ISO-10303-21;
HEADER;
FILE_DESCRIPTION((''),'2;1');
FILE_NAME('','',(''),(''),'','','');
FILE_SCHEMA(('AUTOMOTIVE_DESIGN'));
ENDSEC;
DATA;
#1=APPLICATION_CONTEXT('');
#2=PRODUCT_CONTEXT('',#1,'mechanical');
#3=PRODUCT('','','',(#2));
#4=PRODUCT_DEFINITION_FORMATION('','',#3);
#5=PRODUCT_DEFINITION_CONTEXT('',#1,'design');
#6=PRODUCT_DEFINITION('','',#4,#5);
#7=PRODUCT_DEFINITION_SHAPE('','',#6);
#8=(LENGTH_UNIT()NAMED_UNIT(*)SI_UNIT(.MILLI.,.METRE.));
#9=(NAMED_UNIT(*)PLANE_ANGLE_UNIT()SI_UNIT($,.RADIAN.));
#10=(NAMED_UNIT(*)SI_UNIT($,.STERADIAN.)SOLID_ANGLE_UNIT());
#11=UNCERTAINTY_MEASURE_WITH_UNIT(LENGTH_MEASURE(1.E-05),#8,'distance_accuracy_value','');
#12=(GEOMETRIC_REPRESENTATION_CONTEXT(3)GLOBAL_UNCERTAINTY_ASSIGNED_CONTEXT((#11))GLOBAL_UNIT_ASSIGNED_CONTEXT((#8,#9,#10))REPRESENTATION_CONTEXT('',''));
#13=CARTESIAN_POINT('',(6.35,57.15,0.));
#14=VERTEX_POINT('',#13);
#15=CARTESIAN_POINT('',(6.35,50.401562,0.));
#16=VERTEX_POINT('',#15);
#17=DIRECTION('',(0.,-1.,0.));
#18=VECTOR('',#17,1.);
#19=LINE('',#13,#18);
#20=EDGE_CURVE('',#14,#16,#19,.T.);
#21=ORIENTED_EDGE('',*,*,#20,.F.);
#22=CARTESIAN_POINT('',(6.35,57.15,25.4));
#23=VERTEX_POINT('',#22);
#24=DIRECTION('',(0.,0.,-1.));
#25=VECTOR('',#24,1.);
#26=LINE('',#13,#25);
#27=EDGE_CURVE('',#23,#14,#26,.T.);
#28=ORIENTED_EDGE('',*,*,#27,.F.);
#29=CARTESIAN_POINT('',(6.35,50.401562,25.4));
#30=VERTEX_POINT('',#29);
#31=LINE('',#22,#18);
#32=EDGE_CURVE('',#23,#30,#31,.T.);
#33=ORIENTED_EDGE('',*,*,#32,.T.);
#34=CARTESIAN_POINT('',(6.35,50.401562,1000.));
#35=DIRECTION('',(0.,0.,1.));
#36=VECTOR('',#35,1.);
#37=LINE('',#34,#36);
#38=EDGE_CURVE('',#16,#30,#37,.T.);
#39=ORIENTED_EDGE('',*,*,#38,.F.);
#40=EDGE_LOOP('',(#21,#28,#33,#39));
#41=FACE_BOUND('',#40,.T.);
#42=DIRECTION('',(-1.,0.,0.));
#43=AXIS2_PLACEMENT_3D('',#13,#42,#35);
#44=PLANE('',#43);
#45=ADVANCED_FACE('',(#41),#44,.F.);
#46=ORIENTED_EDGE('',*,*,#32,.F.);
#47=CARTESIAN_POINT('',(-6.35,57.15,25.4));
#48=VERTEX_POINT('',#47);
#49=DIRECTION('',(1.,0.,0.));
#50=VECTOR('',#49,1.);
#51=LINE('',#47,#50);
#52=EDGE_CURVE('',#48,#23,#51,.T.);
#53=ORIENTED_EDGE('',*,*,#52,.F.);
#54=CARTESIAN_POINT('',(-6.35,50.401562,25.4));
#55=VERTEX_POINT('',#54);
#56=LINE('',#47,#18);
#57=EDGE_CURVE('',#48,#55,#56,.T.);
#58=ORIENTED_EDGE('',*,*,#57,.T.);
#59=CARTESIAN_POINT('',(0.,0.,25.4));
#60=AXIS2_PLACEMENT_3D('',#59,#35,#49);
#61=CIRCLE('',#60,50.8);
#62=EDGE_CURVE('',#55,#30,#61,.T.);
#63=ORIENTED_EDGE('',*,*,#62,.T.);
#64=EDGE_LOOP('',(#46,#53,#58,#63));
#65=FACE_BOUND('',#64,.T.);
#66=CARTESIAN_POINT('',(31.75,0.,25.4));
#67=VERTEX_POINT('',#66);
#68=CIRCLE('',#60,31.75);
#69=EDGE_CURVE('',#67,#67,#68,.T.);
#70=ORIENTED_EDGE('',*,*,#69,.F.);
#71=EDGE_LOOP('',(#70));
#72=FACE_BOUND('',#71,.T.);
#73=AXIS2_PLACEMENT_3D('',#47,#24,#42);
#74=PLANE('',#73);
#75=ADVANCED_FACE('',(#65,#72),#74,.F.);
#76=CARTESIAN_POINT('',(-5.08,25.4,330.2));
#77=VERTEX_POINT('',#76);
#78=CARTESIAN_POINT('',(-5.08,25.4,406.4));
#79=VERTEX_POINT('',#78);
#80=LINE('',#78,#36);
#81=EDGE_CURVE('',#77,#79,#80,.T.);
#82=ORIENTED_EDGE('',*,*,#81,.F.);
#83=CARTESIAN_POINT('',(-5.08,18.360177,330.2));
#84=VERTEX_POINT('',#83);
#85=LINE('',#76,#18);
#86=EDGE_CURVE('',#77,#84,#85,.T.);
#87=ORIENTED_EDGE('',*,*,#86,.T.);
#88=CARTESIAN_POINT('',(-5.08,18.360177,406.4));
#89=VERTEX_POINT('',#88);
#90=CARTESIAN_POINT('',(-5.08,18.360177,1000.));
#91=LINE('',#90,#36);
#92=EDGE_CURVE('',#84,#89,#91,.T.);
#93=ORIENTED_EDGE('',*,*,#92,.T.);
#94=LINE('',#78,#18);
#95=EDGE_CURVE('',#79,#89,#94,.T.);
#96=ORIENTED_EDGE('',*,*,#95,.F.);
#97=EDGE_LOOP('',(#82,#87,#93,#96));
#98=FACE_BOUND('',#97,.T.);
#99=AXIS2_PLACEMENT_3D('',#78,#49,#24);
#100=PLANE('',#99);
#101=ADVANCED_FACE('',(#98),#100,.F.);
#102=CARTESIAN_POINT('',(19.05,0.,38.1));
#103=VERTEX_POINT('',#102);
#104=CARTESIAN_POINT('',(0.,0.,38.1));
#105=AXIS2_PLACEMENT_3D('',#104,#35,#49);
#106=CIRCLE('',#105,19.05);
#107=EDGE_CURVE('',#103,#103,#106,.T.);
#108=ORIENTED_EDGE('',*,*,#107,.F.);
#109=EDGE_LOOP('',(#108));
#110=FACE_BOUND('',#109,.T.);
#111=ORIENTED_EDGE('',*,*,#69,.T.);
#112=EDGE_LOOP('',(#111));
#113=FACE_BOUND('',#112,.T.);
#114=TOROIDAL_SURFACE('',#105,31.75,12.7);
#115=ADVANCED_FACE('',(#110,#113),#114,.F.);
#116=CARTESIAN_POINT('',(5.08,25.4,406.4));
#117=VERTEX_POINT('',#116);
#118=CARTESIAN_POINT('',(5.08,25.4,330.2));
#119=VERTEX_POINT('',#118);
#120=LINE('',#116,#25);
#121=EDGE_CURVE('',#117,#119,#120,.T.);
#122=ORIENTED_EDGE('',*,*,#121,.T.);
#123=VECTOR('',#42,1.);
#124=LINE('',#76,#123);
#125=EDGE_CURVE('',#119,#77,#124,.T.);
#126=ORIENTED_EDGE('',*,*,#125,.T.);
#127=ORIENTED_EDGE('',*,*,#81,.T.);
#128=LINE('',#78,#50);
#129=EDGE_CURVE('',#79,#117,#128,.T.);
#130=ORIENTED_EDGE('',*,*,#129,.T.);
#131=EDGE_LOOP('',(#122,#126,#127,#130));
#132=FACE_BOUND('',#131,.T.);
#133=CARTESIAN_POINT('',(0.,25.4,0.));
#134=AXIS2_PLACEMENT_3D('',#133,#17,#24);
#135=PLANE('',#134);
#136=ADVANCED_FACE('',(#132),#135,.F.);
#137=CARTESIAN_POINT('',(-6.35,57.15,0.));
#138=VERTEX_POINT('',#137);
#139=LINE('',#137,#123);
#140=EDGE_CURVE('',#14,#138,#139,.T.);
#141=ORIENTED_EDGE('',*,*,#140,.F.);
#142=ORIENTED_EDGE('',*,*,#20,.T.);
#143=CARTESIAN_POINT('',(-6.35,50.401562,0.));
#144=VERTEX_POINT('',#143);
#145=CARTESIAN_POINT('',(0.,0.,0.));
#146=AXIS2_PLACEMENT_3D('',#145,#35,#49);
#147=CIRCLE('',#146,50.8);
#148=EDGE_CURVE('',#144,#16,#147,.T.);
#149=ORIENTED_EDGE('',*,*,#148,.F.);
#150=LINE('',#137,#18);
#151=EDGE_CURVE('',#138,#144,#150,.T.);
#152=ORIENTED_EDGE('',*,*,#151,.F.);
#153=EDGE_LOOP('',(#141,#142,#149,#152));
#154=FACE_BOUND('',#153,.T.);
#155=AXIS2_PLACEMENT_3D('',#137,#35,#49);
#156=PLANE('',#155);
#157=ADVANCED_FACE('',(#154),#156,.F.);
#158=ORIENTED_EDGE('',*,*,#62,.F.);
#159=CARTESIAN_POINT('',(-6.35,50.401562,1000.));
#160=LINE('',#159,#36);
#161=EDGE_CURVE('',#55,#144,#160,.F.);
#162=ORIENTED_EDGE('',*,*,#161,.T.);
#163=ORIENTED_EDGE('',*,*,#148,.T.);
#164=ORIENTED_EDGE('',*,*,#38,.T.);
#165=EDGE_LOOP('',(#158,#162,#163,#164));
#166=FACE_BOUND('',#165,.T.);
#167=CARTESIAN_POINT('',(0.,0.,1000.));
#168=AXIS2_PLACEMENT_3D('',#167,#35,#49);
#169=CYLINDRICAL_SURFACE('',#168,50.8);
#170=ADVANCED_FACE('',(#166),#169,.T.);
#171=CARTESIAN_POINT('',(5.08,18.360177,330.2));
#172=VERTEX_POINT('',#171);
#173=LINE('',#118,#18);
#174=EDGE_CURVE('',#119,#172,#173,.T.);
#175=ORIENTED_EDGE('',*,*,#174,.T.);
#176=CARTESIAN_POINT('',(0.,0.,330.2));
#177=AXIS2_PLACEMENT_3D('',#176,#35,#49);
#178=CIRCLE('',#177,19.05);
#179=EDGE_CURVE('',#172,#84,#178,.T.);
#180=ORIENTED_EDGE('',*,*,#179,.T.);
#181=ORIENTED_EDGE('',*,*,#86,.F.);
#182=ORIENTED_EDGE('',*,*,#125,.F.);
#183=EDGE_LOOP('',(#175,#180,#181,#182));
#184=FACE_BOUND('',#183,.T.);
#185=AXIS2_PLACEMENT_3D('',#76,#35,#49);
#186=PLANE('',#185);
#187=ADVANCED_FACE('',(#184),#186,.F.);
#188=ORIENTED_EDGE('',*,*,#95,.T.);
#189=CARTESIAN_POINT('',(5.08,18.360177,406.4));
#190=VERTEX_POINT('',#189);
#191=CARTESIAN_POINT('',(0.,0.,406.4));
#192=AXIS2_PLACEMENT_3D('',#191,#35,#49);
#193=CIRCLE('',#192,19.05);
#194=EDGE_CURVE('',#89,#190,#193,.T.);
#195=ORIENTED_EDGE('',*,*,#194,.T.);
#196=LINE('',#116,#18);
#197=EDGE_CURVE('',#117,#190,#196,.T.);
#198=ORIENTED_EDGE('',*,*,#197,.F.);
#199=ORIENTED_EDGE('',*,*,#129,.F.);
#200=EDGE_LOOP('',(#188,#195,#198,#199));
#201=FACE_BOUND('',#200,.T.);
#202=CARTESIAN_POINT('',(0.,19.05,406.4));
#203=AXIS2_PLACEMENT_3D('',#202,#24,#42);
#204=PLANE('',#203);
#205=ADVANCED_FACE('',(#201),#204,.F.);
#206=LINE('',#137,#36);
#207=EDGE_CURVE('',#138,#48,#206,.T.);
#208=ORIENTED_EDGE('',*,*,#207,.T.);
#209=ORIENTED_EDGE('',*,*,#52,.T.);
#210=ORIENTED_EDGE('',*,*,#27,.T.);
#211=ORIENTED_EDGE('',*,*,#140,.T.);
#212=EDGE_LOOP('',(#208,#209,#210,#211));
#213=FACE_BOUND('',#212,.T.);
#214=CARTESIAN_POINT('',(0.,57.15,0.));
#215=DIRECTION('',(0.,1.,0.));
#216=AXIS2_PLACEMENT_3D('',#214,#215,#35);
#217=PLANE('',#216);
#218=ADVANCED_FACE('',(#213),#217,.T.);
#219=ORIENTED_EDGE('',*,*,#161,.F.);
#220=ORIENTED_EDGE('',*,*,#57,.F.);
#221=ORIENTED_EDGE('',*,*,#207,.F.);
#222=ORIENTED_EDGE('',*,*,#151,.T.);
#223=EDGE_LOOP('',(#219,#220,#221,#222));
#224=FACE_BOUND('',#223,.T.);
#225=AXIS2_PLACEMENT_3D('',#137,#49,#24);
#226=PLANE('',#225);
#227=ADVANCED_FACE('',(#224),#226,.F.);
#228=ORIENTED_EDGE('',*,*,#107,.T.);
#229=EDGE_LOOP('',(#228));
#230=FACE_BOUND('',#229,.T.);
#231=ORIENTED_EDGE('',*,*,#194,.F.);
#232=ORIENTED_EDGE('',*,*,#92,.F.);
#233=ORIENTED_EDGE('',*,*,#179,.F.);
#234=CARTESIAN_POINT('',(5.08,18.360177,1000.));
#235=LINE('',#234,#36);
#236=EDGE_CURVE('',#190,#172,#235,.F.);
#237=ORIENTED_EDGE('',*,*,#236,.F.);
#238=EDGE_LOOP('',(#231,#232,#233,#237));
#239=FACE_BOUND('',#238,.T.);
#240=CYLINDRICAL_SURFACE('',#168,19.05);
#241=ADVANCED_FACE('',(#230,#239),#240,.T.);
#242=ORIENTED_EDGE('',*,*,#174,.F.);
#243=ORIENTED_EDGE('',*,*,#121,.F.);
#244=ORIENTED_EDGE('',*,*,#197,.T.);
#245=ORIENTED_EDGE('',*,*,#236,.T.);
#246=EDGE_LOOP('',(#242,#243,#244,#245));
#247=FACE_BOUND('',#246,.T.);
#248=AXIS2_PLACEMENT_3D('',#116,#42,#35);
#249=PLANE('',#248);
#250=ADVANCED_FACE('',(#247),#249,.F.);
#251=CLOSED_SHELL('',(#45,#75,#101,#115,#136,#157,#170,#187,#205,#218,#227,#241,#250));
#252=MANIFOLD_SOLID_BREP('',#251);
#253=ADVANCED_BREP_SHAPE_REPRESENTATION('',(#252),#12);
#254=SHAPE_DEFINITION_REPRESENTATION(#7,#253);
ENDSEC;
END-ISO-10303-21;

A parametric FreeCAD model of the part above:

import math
import FreeCAD as App
import Part
import Sketcher

V = App.Vector
Q = App.Units.Quantity

doc = App.newDocument("Part")
body = doc.addObject("PartDesign::Body", "Body")

# Sketch on XZ plane
sketch1 = body.newObject("Sketcher::SketchObject", "Sketch")
sketch1.AttachmentSupport = (doc.getObject("XZ_Plane"), [""])
sketch1.MapMode = "FlatFace"
sketch1.addGeometry([
    Part.LineSegment(V(-6.35, 0, 0), V(-6.35, 25.4, 0)),
    Part.LineSegment(V(-6.35, 25.4, 0), V(6.35, 25.4, 0)),
    Part.LineSegment(V(6.35, 25.4, 0), V(6.35, 0, 0)),
    Part.LineSegment(V(6.35, 0, 0), V(-6.35, 0, 0)),
], False)
sketch1.addConstraint([
    Sketcher.Constraint("Coincident", 0, 2, 1, 1),
    Sketcher.Constraint("Coincident", 1, 2, 2, 1),
    Sketcher.Constraint("Coincident", 2, 2, 3, 1),
    Sketcher.Constraint("Coincident", 3, 2, 0, 1),
    Sketcher.Constraint("Vertical", 0),
    Sketcher.Constraint("Horizontal", 1),
    Sketcher.Constraint("Vertical", 2),
    Sketcher.Constraint("Horizontal", 3),
    Sketcher.Constraint("Symmetric", 2, 2, 3, 2, -1, 1),
    Sketcher.Constraint("DistanceY", 0, 1, 0, 2, Q("1 in")),
    Sketcher.Constraint("DistanceX", 1, 1, 1, 2, Q("0.5 in")),
])
pad1 = body.newObject("PartDesign::Pad", "Pad")
pad1.Profile = sketch1
pad1.Length = Q("2.25 in")
pad1.Reversed = True
body2 = doc.addObject("PartDesign::Body", "Body001")

# Sketch on XZ plane
sketch2 = body2.newObject("Sketcher::SketchObject", "Sketch001")
sketch2.AttachmentSupport = (doc.getObject("XZ_Plane001"), [""])
sketch2.MapMode = "FlatFace"
sketch2.addGeometry([
    Part.LineSegment(V(-5.08, 330.2, 0), V(-5.08, 406.4, 0)),
    Part.LineSegment(V(-5.08, 406.4, 0), V(5.08, 406.4, 0)),
    Part.LineSegment(V(5.08, 406.4, 0), V(5.08, 330.2, 0)),
    Part.LineSegment(V(5.08, 330.2, 0), V(-5.08, 330.2, 0)),
], False)
sketch2.addConstraint([
    Sketcher.Constraint("Coincident", 0, 2, 1, 1),
    Sketcher.Constraint("Coincident", 1, 2, 2, 1),
    Sketcher.Constraint("Coincident", 2, 2, 3, 1),
    Sketcher.Constraint("Coincident", 3, 2, 0, 1),
    Sketcher.Constraint("Vertical", 0),
    Sketcher.Constraint("Horizontal", 1),
    Sketcher.Constraint("Vertical", 2),
    Sketcher.Constraint("Horizontal", 3),
    Sketcher.Constraint("DistanceY", 0, 1, 0, 2, Q("3 in")),
    Sketcher.Constraint("DistanceX", 1, 1, 1, 2, Q("0.4 in")),
    Sketcher.Constraint("DistanceY", -1, 1, 0, 2, Q("16 in")),
    Sketcher.Constraint("DistanceX", 0, 2, -1, 1, Q("0.2 in")),
])
pad2 = body2.newObject("PartDesign::Pad", "Pad001")
pad2.Profile = sketch2
pad2.Length = Q("1 in")
pad2.Reversed = True
body.AllowCompound = True
doc.recompute()

boolean = body.newObject("PartDesign::Boolean", "Boolean")
boolean.Type = "Fuse"
boolean.addObjects([body2])

# Sketch on YZ plane
sketch3 = body.newObject("Sketcher::SketchObject", "Sketch002")
sketch3.AttachmentSupport = (doc.getObject("YZ_Plane"), [""])
sketch3.MapMode = "FlatFace"
sketch3.addGeometry([
    Part.LineSegment(V(0, 0, 0), V(50.8, 0, 0)),  # 0
    Part.LineSegment(V(50.8, 0, 0), V(50.8, 25.4, 0)),  # 1
    Part.LineSegment(V(50.8, 25.4, 0), V(31.75, 25.4, 0)),  # 2
    Part.ArcOfCircle(Part.Circle(V(31.75, 38.1, 0), V(0, 0, 1), 12.7), math.radians(180), math.radians(270)),  # 3
    Part.LineSegment(V(19.05, 38.1, 0), V(19.05, 406.4, 0)),  # 4
    Part.LineSegment(V(19.05, 406.4, 0), V(0, 406.4, 0)),  # 5
    Part.LineSegment(V(0, 406.4, 0), V(0, 0, 0)),  # 6
], False)
sketch3.addConstraint([
    Sketcher.Constraint("Coincident", 0, 2, 1, 1),
    Sketcher.Constraint("Coincident", 1, 2, 2, 1),
    Sketcher.Constraint("Tangent", 2, 2, 3, 2),
    Sketcher.Constraint("Tangent", 3, 1, 4, 1),
    Sketcher.Constraint("Coincident", 4, 2, 5, 1),
    Sketcher.Constraint("Coincident", 5, 2, 6, 1),
    Sketcher.Constraint("Coincident", 6, 2, 0, 1),
    Sketcher.Constraint("Horizontal", 0),
    Sketcher.Constraint("Vertical", 1),
    Sketcher.Constraint("Horizontal", 2),
    Sketcher.Constraint("Vertical", 4),
    Sketcher.Constraint("Horizontal", 5),
    Sketcher.Constraint("Vertical", 6),
    Sketcher.Constraint("Coincident", 6, 2, -1, 1),
    Sketcher.Constraint("Equal", 2, 5),
    Sketcher.Constraint("Radius", 3, Q("0.5 in")),
    Sketcher.Constraint("DistanceX", 0, 1, 0, 2, Q("2 in")),
    Sketcher.Constraint("DistanceY", 1, 1, 1, 2, Q("1 in")),
    Sketcher.Constraint("DistanceY", 6, 2, 6, 1, Q("16 in")),
])
revolution = body.newObject("PartDesign::Revolution", "Revolution")
revolution.Profile = sketch3
revolution.ReferenceAxis = (sketch3, ["V_Axis"])
revolution.Angle = 360

doc.recompute()
